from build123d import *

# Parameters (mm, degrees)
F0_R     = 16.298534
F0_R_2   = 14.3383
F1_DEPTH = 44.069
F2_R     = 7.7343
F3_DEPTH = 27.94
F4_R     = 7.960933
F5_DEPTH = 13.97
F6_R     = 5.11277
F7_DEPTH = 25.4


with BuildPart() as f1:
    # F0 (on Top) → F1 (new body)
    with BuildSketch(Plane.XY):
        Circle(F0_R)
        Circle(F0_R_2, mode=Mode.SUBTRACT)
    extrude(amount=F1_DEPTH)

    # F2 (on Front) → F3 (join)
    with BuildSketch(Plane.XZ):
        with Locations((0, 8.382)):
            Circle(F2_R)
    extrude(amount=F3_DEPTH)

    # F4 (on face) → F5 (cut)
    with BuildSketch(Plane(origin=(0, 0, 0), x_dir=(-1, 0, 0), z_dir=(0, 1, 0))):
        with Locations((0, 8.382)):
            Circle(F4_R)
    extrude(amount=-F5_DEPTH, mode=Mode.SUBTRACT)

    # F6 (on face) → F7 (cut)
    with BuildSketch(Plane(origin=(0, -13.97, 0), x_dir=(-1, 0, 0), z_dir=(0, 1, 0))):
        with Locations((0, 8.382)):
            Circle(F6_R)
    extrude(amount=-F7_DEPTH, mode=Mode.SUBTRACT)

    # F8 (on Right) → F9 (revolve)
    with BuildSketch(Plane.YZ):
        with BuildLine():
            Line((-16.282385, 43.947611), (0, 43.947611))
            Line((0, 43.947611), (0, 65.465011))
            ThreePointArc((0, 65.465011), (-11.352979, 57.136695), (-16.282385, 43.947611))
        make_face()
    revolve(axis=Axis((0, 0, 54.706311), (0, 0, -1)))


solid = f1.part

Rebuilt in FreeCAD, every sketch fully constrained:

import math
import FreeCAD as App
import Part
import Sketcher
Q = App.Units.Quantity

doc = App.newDocument("Part")
params = doc.addObject("Spreadsheet::Sheet", "Params")
for row, (alias, value) in enumerate([
    ("sketch1_diameter", "1.129 in"),
    ("pad1_length", "1.735 in"),
    ("sketch2_diameter", "0.609 in"),
    ("pad2_length", "1.1 in"),
    ("pocket1_length", "0.55 in"),
    ("pocket2_length", "1 in"),
    ("revolution_angle", "360 deg"),
], start=1):
    params.set(f"A{row}", alias)
    params.set(f"B{row}", "=" + value)
    params.setAlias(f"B{row}", alias)

body = doc.addObject("PartDesign::Body", "Body")

# Sketch on XY plane
sketch1 = body.newObject("Sketcher::SketchObject", "Sketch")
sketch1.AttachmentSupport = (doc.getObject("XY_Plane"), [""])
sketch1.MapMode = "FlatFace"
sketch1.addGeometry(Part.Circle(App.Vector(0, 0, 0), App.Vector(0, 0, 1), 16.298534), False)
sketch1.addGeometry(Part.Circle(App.Vector(0, 0, 0), App.Vector(0, 0, 1), 14.3383), False)
sketch1.addConstraint(Sketcher.Constraint("Coincident", 0, 3, -1, 1))
sketch1.addConstraint(Sketcher.Constraint("Coincident", 1, 3, -1, 1))
sketch1.addConstraint(Sketcher.Constraint("Diameter", 1, Q("1.129 in")))
sketch1.addConstraint(Sketcher.Constraint("Diameter", 0, 32.597068))
sketch1.setExpression("Constraints[2]", "Params.sketch1_diameter")
pad1 = body.newObject("PartDesign::Pad", "Pad")
pad1.Profile = sketch1
pad1.setExpression("Length", "Params.pad1_length")

# Sketch on XZ plane
sketch2 = body.newObject("Sketcher::SketchObject", "Sketch001")
sketch2.AttachmentSupport = (doc.getObject("XZ_Plane"), [""])
sketch2.MapMode = "FlatFace"
sketch2.addGeometry(Part.Circle(App.Vector(0, 8.382, 0), App.Vector(0, 0, 1), 7.7343), False)
sketch2.addConstraint(Sketcher.Constraint("PointOnObject", 0, 3, -2))
sketch2.addConstraint(Sketcher.Constraint("Diameter", 0, Q("0.609 in")))
sketch2.addConstraint(Sketcher.Constraint("DistanceY", -1, 1, 0, 3, Q("0.33 in")))
sketch2.setExpression("Constraints[1]", "Params.sketch2_diameter")
pad2 = body.newObject("PartDesign::Pad", "Pad001")
pad2.Profile = sketch2
pad2.setExpression("Length", "Params.pad2_length")

# Sketch on XZ plane
sketch3 = body.newObject("Sketcher::SketchObject", "Sketch002")
sketch3.AttachmentSupport = (doc.getObject("XZ_Plane"), [""])
sketch3.MapMode = "FlatFace"
sketch3.addGeometry(Part.Circle(App.Vector(0, 8.382, 0), App.Vector(0, 0, 1), 7.960933), False)
sketch3.addConstraint(Sketcher.Constraint("PointOnObject", 0, 3, -2))
sketch3.addConstraint(Sketcher.Constraint("DistanceY", -1, 1, 0, 3, Q("0.33 in")))
sketch3.addConstraint(Sketcher.Constraint("Diameter", 0, 15.921866))
pocket1 = body.newObject("PartDesign::Pocket", "Pocket")
pocket1.Profile = sketch3
pocket1.setExpression("Length", "Params.pocket1_length")
pocket1.Reversed = True

# Sketch on XZ plane
sketch4 = body.newObject("Sketcher::SketchObject", "Sketch003")
sketch4.AttachmentSupport = (doc.getObject("XZ_Plane"), [""])
sketch4.MapMode = "FlatFace"
sketch4.AttachmentOffset = App.Placement(App.Vector(0, 0, 0.55 * 25.4), App.Rotation())
sketch4.addGeometry(Part.Circle(App.Vector(0, 8.382, 0), App.Vector(0, 0, 1), 5.11277), False)
sketch4.addConstraint(Sketcher.Constraint("PointOnObject", 0, 3, -2))
sketch4.addConstraint(Sketcher.Constraint("DistanceY", -1, 1, 0, 3, Q("0.33 in")))
sketch4.addConstraint(Sketcher.Constraint("Diameter", 0, 10.22554))
pocket2 = body.newObject("PartDesign::Pocket", "Pocket001")
pocket2.Profile = sketch4
pocket2.setExpression("Length", "Params.pocket2_length")
pocket2.Reversed = True

# Sketch on YZ plane
sketch5 = body.newObject("Sketcher::SketchObject", "Sketch004")
sketch5.AttachmentSupport = (doc.getObject("YZ_Plane"), [""])
sketch5.MapMode = "FlatFace"
sketch5.addGeometry(Part.LineSegment(App.Vector(-16.282385, 43.947611, 0), App.Vector(0, 43.947611, 0)), False)
sketch5.addGeometry(Part.LineSegment(App.Vector(0, 43.947611, 0), App.Vector(0, 65.465011, 0)), False)
sketch5.addGeometry(Part.ArcOfCircle(Part.Circle(App.Vector(8.272422, 42.286, 0), App.Vector(0, 0, 1), 24.610963), math.radians(109.641117), math.radians(176.128727)), False)
sketch5.addConstraint(Sketcher.Constraint("Coincident", 0, 2, 1, 1))
sketch5.addConstraint(Sketcher.Constraint("Coincident", 1, 2, 2, 1))
sketch5.addConstraint(Sketcher.Constraint("Coincident", 2, 2, 0, 1))
sketch5.addConstraint(Sketcher.Constraint("Horizontal", 0))
sketch5.addConstraint(Sketcher.Constraint("Vertical", 1))
sketch5.addConstraint(Sketcher.Constraint("PointOnObject", 0, 2, -2))
sketch5.addConstraint(Sketcher.Constraint("DistanceY", 1, 1, 1, 2, 21.5174))
sketch5.addConstraint(Sketcher.Constraint("Radius", 2, 24.610963))
sketch5.addConstraint(Sketcher.Constraint("DistanceY", -1, 1, 2, 3, 42.286))
sketch5.addConstraint(Sketcher.Constraint("DistanceX", 0, 1, 0, 2, 16.282385))
revolution = body.newObject("PartDesign::Revolution", "Revolution")
revolution.Profile = sketch5
revolution.ReferenceAxis = (sketch5, ["V_Axis"])
revolution.setExpression("Angle", "Params.revolution_angle")

doc.recompute()
